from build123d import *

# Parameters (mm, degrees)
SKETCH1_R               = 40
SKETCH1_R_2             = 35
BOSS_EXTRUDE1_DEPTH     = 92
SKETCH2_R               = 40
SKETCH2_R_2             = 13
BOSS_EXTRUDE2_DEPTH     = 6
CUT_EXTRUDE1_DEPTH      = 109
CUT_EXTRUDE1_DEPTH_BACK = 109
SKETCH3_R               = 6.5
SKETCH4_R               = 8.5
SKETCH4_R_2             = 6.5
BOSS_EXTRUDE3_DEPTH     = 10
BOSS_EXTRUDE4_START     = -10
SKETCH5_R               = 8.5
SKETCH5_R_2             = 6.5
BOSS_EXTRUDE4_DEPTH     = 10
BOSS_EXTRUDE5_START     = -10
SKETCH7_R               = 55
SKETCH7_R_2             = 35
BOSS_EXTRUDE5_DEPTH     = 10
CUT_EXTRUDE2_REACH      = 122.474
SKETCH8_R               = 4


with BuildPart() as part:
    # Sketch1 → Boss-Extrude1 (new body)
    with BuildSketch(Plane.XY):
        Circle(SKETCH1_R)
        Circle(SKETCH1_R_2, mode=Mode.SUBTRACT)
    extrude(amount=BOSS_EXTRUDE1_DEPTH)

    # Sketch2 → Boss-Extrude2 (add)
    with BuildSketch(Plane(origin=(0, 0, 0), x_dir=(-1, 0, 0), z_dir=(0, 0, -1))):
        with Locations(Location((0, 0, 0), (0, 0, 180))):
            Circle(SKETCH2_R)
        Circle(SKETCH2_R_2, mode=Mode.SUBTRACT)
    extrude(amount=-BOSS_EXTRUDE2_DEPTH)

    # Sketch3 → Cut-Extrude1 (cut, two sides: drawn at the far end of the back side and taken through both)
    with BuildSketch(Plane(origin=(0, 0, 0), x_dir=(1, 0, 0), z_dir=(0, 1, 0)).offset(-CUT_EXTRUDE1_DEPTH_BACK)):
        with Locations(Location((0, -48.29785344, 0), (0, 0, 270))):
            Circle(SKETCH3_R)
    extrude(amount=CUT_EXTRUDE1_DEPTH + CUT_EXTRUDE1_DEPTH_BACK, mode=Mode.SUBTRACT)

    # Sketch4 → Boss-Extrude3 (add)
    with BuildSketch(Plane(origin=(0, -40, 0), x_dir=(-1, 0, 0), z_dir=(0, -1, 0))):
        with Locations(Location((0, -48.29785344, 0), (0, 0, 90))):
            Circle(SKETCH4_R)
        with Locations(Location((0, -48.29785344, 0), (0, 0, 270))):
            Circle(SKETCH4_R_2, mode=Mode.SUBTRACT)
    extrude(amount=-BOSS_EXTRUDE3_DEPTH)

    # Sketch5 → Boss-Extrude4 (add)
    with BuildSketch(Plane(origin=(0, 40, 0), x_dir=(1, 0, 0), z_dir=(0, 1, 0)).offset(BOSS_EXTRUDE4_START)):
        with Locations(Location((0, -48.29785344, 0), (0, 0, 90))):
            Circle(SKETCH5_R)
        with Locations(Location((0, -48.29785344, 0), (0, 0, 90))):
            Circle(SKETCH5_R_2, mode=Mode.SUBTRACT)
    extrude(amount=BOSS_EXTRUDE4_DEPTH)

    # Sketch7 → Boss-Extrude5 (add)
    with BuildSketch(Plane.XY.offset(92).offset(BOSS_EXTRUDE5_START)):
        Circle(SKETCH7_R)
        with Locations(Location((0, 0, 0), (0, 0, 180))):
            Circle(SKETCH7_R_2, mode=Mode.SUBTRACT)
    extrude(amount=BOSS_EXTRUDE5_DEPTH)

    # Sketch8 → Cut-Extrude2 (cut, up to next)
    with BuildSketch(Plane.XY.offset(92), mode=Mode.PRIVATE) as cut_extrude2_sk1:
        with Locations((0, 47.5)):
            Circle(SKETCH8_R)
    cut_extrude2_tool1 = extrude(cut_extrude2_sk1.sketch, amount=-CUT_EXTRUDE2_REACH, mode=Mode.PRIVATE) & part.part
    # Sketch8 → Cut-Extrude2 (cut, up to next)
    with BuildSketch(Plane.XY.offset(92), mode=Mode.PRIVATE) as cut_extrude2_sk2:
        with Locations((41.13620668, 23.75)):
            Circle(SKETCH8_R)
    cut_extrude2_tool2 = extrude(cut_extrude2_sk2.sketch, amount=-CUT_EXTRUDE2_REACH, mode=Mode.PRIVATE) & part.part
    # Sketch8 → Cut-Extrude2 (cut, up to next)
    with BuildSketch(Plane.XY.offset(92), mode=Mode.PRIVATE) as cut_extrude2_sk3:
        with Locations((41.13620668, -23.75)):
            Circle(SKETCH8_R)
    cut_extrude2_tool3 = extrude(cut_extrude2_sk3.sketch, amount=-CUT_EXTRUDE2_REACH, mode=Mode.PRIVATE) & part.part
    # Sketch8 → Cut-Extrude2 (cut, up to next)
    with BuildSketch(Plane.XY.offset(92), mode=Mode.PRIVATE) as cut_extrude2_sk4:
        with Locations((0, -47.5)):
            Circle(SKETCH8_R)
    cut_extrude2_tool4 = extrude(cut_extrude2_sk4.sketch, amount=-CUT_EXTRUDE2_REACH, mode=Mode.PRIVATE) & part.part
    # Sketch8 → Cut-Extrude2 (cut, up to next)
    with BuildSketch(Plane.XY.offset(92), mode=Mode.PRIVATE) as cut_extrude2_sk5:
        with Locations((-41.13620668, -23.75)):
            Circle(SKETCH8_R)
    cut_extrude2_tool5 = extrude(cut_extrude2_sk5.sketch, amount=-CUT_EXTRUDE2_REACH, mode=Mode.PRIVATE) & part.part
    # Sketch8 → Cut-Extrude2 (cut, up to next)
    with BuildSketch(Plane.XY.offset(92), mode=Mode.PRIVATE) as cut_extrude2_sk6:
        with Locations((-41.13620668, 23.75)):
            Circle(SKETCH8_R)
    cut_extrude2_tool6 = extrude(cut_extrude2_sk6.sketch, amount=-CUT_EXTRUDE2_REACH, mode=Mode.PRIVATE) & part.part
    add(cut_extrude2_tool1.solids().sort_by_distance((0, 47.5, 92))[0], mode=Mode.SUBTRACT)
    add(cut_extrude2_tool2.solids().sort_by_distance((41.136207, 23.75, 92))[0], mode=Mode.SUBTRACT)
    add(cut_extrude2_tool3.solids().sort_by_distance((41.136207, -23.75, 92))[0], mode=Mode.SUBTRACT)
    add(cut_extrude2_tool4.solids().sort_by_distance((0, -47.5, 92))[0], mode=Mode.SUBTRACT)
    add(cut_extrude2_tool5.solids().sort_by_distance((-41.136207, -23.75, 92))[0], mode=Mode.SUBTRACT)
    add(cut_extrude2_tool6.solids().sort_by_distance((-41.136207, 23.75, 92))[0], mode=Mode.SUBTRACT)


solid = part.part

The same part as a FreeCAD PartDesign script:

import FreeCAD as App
import Part
import Sketcher
from FreeCAD import Vector

doc = App.newDocument("Part")
body = doc.addObject("PartDesign::Body", "Body")

# Sketch on XY plane
sketch1 = body.newObject("Sketcher::SketchObject", "Sketch")
sketch1.AttachmentSupport = (doc.getObject("XY_Plane"), [""])
sketch1.MapMode = "FlatFace"
sketch1.addGeometry(Part.Circle(Vector(0, 0, 0), Vector(0, 0, 1), 40), False)
sketch1.addGeometry(Part.Circle(Vector(0, 0, 0), Vector(0, 0, 1), 35), False)
sketch1.addConstraint(Sketcher.Constraint("Coincident", 0, 3, -1, 1))
sketch1.addConstraint(Sketcher.Constraint("Coincident", 1, 3, -1, 1))
sketch1.addConstraint(Sketcher.Constraint("Diameter", 0, 80.0))
sketch1.addConstraint(Sketcher.Constraint("Diameter", 1, 70.0))
pad1 = body.newObject("PartDesign::Pad", "Pad")
pad1.Profile = sketch1
pad1.Length = 92

# Sketch on XY plane
sketch2 = body.newObject("Sketcher::SketchObject", "Sketch001")
sketch2.AttachmentSupport = (doc.getObject("XY_Plane"), [""])
sketch2.MapMode = "FlatFace"
sketch2.addGeometry(Part.Circle(Vector(0, 0, 0), Vector(0, 0, 1), 40), False)
sketch2.addGeometry(Part.Circle(Vector(0, 0, 0), Vector(0, 0, 1), 13), False)
sketch2.addConstraint(Sketcher.Constraint("Coincident", 0, 3, -1, 1))
sketch2.addConstraint(Sketcher.Constraint("Coincident", 1, 3, -1, 1))
sketch2.addConstraint(Sketcher.Constraint("Diameter", 0, 80.0))
sketch2.addConstraint(Sketcher.Constraint("Diameter", 1, 26.0))
pad2 = body.newObject("PartDesign::Pad", "Pad001")
pad2.Profile = sketch2
pad2.Length = 6

# Sketch on XZ plane
sketch3 = body.newObject("Sketcher::SketchObject", "Sketch002")
sketch3.AttachmentSupport = (doc.getObject("XZ_Plane"), [""])
sketch3.MapMode = "FlatFace"
sketch3.addGeometry(Part.Circle(Vector(0, 48.297853, 0), Vector(0, 0, 1), 6.5), False)
sketch3.addConstraint(Sketcher.Constraint("PointOnObject", 0, 3, -2))
sketch3.addConstraint(Sketcher.Constraint("Diameter", 0, 13.0))
sketch3.addConstraint(Sketcher.Constraint("DistanceY", -1, 1, 0, 3, 48.297853))
pocket1 = body.newObject("PartDesign::Pocket", "Pocket")
pocket1.Profile = sketch3
pocket1.Type = "ThroughAll"
pocket1.Midplane = True

# Sketch on XZ plane
sketch4 = body.newObject("Sketcher::SketchObject", "Sketch003")
sketch4.AttachmentSupport = (doc.getObject("XZ_Plane"), [""])
sketch4.MapMode = "FlatFace"
sketch4.AttachmentOffset = App.Placement(Vector(0, 0, 40), App.Rotation())
sketch4.addGeometry(Part.Circle(Vector(0, 48.297853, 0), Vector(0, 0, 1), 8.5), False)
sketch4.addGeometry(Part.Circle(Vector(0, 48.297853, 0), Vector(0, 0, 1), 6.5), False)
sketch4.addConstraint(Sketcher.Constraint("Coincident", 1, 3, 0, 3))
sketch4.addConstraint(Sketcher.Constraint("PointOnObject", 0, 3, -2))
sketch4.addConstraint(Sketcher.Constraint("Diameter", 0, 17.0))
sketch4.addConstraint(Sketcher.Constraint("Diameter", 1, 13.0))
sketch4.addConstraint(Sketcher.Constraint("DistanceY", -1, 1, 0, 3, 48.297853))
pad3 = body.newObject("PartDesign::Pad", "Pad002")
pad3.Profile = sketch4
pad3.Length = 10
pad3.Reversed = True

# Sketch on XZ plane
sketch5 = body.newObject("Sketcher::SketchObject", "Sketch004")
sketch5.AttachmentSupport = (doc.getObject("XZ_Plane"), [""])
sketch5.MapMode = "FlatFace"
sketch5.AttachmentOffset = App.Placement(Vector(0, 0, -30), App.Rotation())
sketch5.addGeometry(Part.Circle(Vector(0, 48.297853, 0), Vector(0, 0, 1), 8.5), False)
sketch5.addGeometry(Part.Circle(Vector(0, 48.297853, 0), Vector(0, 0, 1), 6.5), False)
sketch5.addConstraint(Sketcher.Constraint("Coincident", 1, 3, 0, 3))
sketch5.addConstraint(Sketcher.Constraint("PointOnObject", 0, 3, -2))
sketch5.addConstraint(Sketcher.Constraint("Diameter", 0, 17.0))
sketch5.addConstraint(Sketcher.Constraint("Diameter", 1, 13.0))
sketch5.addConstraint(Sketcher.Constraint("DistanceY", -1, 1, 0, 3, 48.297853))
pad4 = body.newObject("PartDesign::Pad", "Pad003")
pad4.Profile = sketch5
pad4.Length = 10
pad4.Reversed = True

# Sketch on XY plane
sketch6 = body.newObject("Sketcher::SketchObject", "Sketch005")
sketch6.AttachmentSupport = (doc.getObject("XY_Plane"), [""])
sketch6.MapMode = "FlatFace"
sketch6.AttachmentOffset = App.Placement(Vector(0, 0, 82), App.Rotation())
sketch6.addGeometry(Part.Circle(Vector(0, 0, 0), Vector(0, 0, 1), 55), False)
sketch6.addGeometry(Part.Circle(Vector(0, 0, 0), Vector(0, 0, 1), 35), False)
sketch6.addConstraint(Sketcher.Constraint("Coincident", 0, 3, -1, 1))
sketch6.addConstraint(Sketcher.Constraint("Coincident", 1, 3, -1, 1))
sketch6.addConstraint(Sketcher.Constraint("Diameter", 0, 110.0))
sketch6.addConstraint(Sketcher.Constraint("Diameter", 1, 70.0))
pad5 = body.newObject("PartDesign::Pad", "Pad004")
pad5.Profile = sketch6
pad5.Length = 10

# Sketch on XY plane
sketch7 = body.newObject("Sketcher::SketchObject", "Sketch006")
sketch7.AttachmentSupport = (doc.getObject("XY_Plane"), [""])
sketch7.MapMode = "FlatFace"
sketch7.AttachmentOffset = App.Placement(Vector(0, 0, 92), App.Rotation())
sketch7.addGeometry(Part.Circle(Vector(0, 47.5, 0), Vector(0, 0, 1), 4), False)
sketch7.addConstraint(Sketcher.Constraint("PointOnObject", 0, 3, -2))
sketch7.addConstraint(Sketcher.Constraint("Diameter", 0, 8.0))
sketch7.addConstraint(Sketcher.Constraint("DistanceY", -1, 1, 0, 3, 47.5))
pocket2 = body.newObject("PartDesign::Pocket", "Pocket001")
pocket2.Profile = sketch7
pocket2.Type = "UpToFirst"

# Sketch on XY plane
sketch8 = body.newObject("Sketcher::SketchObject", "Sketch007")
sketch8.AttachmentSupport = (doc.getObject("XY_Plane"), [""])
sketch8.MapMode = "FlatFace"
sketch8.AttachmentOffset = App.Placement(Vector(0, 0, 92), App.Rotation())
sketch8.addGeometry(Part.Circle(Vector(41.136207, 23.75, 0), Vector(0, 0, 1), 4), False)
sketch8.addConstraint(Sketcher.Constraint("Diameter", 0, 8.0))
sketch8.addConstraint(Sketcher.Constraint("DistanceY", -1, 1, 0, 3, 23.75))
sketch8.addConstraint(Sketcher.Constraint("DistanceX", -1, 1, 0, 3, 41.136207))
pocket3 = body.newObject("PartDesign::Pocket", "Pocket002")
pocket3.Profile = sketch8
pocket3.Type = "UpToFirst"

# Sketch on XY plane
sketch9 = body.newObject("Sketcher::SketchObject", "Sketch008")
sketch9.AttachmentSupport = (doc.getObject("XY_Plane"), [""])
sketch9.MapMode = "FlatFace"
sketch9.AttachmentOffset = App.Placement(Vector(0, 0, 92), App.Rotation())
sketch9.addGeometry(Part.Circle(Vector(41.136207, -23.75, 0), Vector(0, 0, 1), 4), False)
sketch9.addConstraint(Sketcher.Constraint("Diameter", 0, 8.0))
sketch9.addConstraint(Sketcher.Constraint("DistanceY", 0, 3, -1, 1, 23.75))
sketch9.addConstraint(Sketcher.Constraint("DistanceX", -1, 1, 0, 3, 41.136207))
pocket4 = body.newObject("PartDesign::Pocket", "Pocket003")
pocket4.Profile = sketch9
pocket4.Type = "UpToFirst"

# Sketch on XY plane
sketch10 = body.newObject("Sketcher::SketchObject", "Sketch009")
sketch10.AttachmentSupport = (doc.getObject("XY_Plane"), [""])
sketch10.MapMode = "FlatFace"
sketch10.AttachmentOffset = App.Placement(Vector(0, 0, 92), App.Rotation())
sketch10.addGeometry(Part.Circle(Vector(0, -47.5, 0), Vector(0, 0, 1), 4), False)
sketch10.addConstraint(Sketcher.Constraint("PointOnObject", 0, 3, -2))
sketch10.addConstraint(Sketcher.Constraint("Diameter", 0, 8.0))
sketch10.addConstraint(Sketcher.Constraint("DistanceY", 0, 3, -1, 1, 47.5))
pocket5 = body.newObject("PartDesign::Pocket", "Pocket004")
pocket5.Profile = sketch10
pocket5.Type = "UpToFirst"

# Sketch on XY plane
sketch11 = body.newObject("Sketcher::SketchObject", "Sketch010")
sketch11.AttachmentSupport = (doc.getObject("XY_Plane"), [""])
sketch11.MapMode = "FlatFace"
sketch11.AttachmentOffset = App.Placement(Vector(0, 0, 92), App.Rotation())
sketch11.addGeometry(Part.Circle(Vector(-41.136207, -23.75, 0), Vector(0, 0, 1), 4), False)
sketch11.addConstraint(Sketcher.Constraint("Diameter", 0, 8.0))
sketch11.addConstraint(Sketcher.Constraint("DistanceY", 0, 3, -1, 1, 23.75))
sketch11.addConstraint(Sketcher.Constraint("DistanceX", 0, 3, -1, 1, 41.136207))
pocket6 = body.newObject("PartDesign::Pocket", "Pocket005")
pocket6.Profile = sketch11
pocket6.Type = "UpToFirst"

# Sketch on XY plane
sketch12 = body.newObject("Sketcher::SketchObject", "Sketch011")
sketch12.AttachmentSupport = (doc.getObject("XY_Plane"), [""])
sketch12.MapMode = "FlatFace"
sketch12.AttachmentOffset = App.Placement(Vector(0, 0, 92), App.Rotation())
sketch12.addGeometry(Part.Circle(Vector(-41.136207, 23.75, 0), Vector(0, 0, 1), 4), False)
sketch12.addConstraint(Sketcher.Constraint("Diameter", 0, 8.0))
sketch12.addConstraint(Sketcher.Constraint("DistanceY", -1, 1, 0, 3, 23.75))
sketch12.addConstraint(Sketcher.Constraint("DistanceX", 0, 3, -1, 1, 41.136207))
pocket7 = body.newObject("PartDesign::Pocket", "Pocket006")
pocket7.Profile = sketch12
pocket7.Type = "UpToFirst"

doc.recompute()
